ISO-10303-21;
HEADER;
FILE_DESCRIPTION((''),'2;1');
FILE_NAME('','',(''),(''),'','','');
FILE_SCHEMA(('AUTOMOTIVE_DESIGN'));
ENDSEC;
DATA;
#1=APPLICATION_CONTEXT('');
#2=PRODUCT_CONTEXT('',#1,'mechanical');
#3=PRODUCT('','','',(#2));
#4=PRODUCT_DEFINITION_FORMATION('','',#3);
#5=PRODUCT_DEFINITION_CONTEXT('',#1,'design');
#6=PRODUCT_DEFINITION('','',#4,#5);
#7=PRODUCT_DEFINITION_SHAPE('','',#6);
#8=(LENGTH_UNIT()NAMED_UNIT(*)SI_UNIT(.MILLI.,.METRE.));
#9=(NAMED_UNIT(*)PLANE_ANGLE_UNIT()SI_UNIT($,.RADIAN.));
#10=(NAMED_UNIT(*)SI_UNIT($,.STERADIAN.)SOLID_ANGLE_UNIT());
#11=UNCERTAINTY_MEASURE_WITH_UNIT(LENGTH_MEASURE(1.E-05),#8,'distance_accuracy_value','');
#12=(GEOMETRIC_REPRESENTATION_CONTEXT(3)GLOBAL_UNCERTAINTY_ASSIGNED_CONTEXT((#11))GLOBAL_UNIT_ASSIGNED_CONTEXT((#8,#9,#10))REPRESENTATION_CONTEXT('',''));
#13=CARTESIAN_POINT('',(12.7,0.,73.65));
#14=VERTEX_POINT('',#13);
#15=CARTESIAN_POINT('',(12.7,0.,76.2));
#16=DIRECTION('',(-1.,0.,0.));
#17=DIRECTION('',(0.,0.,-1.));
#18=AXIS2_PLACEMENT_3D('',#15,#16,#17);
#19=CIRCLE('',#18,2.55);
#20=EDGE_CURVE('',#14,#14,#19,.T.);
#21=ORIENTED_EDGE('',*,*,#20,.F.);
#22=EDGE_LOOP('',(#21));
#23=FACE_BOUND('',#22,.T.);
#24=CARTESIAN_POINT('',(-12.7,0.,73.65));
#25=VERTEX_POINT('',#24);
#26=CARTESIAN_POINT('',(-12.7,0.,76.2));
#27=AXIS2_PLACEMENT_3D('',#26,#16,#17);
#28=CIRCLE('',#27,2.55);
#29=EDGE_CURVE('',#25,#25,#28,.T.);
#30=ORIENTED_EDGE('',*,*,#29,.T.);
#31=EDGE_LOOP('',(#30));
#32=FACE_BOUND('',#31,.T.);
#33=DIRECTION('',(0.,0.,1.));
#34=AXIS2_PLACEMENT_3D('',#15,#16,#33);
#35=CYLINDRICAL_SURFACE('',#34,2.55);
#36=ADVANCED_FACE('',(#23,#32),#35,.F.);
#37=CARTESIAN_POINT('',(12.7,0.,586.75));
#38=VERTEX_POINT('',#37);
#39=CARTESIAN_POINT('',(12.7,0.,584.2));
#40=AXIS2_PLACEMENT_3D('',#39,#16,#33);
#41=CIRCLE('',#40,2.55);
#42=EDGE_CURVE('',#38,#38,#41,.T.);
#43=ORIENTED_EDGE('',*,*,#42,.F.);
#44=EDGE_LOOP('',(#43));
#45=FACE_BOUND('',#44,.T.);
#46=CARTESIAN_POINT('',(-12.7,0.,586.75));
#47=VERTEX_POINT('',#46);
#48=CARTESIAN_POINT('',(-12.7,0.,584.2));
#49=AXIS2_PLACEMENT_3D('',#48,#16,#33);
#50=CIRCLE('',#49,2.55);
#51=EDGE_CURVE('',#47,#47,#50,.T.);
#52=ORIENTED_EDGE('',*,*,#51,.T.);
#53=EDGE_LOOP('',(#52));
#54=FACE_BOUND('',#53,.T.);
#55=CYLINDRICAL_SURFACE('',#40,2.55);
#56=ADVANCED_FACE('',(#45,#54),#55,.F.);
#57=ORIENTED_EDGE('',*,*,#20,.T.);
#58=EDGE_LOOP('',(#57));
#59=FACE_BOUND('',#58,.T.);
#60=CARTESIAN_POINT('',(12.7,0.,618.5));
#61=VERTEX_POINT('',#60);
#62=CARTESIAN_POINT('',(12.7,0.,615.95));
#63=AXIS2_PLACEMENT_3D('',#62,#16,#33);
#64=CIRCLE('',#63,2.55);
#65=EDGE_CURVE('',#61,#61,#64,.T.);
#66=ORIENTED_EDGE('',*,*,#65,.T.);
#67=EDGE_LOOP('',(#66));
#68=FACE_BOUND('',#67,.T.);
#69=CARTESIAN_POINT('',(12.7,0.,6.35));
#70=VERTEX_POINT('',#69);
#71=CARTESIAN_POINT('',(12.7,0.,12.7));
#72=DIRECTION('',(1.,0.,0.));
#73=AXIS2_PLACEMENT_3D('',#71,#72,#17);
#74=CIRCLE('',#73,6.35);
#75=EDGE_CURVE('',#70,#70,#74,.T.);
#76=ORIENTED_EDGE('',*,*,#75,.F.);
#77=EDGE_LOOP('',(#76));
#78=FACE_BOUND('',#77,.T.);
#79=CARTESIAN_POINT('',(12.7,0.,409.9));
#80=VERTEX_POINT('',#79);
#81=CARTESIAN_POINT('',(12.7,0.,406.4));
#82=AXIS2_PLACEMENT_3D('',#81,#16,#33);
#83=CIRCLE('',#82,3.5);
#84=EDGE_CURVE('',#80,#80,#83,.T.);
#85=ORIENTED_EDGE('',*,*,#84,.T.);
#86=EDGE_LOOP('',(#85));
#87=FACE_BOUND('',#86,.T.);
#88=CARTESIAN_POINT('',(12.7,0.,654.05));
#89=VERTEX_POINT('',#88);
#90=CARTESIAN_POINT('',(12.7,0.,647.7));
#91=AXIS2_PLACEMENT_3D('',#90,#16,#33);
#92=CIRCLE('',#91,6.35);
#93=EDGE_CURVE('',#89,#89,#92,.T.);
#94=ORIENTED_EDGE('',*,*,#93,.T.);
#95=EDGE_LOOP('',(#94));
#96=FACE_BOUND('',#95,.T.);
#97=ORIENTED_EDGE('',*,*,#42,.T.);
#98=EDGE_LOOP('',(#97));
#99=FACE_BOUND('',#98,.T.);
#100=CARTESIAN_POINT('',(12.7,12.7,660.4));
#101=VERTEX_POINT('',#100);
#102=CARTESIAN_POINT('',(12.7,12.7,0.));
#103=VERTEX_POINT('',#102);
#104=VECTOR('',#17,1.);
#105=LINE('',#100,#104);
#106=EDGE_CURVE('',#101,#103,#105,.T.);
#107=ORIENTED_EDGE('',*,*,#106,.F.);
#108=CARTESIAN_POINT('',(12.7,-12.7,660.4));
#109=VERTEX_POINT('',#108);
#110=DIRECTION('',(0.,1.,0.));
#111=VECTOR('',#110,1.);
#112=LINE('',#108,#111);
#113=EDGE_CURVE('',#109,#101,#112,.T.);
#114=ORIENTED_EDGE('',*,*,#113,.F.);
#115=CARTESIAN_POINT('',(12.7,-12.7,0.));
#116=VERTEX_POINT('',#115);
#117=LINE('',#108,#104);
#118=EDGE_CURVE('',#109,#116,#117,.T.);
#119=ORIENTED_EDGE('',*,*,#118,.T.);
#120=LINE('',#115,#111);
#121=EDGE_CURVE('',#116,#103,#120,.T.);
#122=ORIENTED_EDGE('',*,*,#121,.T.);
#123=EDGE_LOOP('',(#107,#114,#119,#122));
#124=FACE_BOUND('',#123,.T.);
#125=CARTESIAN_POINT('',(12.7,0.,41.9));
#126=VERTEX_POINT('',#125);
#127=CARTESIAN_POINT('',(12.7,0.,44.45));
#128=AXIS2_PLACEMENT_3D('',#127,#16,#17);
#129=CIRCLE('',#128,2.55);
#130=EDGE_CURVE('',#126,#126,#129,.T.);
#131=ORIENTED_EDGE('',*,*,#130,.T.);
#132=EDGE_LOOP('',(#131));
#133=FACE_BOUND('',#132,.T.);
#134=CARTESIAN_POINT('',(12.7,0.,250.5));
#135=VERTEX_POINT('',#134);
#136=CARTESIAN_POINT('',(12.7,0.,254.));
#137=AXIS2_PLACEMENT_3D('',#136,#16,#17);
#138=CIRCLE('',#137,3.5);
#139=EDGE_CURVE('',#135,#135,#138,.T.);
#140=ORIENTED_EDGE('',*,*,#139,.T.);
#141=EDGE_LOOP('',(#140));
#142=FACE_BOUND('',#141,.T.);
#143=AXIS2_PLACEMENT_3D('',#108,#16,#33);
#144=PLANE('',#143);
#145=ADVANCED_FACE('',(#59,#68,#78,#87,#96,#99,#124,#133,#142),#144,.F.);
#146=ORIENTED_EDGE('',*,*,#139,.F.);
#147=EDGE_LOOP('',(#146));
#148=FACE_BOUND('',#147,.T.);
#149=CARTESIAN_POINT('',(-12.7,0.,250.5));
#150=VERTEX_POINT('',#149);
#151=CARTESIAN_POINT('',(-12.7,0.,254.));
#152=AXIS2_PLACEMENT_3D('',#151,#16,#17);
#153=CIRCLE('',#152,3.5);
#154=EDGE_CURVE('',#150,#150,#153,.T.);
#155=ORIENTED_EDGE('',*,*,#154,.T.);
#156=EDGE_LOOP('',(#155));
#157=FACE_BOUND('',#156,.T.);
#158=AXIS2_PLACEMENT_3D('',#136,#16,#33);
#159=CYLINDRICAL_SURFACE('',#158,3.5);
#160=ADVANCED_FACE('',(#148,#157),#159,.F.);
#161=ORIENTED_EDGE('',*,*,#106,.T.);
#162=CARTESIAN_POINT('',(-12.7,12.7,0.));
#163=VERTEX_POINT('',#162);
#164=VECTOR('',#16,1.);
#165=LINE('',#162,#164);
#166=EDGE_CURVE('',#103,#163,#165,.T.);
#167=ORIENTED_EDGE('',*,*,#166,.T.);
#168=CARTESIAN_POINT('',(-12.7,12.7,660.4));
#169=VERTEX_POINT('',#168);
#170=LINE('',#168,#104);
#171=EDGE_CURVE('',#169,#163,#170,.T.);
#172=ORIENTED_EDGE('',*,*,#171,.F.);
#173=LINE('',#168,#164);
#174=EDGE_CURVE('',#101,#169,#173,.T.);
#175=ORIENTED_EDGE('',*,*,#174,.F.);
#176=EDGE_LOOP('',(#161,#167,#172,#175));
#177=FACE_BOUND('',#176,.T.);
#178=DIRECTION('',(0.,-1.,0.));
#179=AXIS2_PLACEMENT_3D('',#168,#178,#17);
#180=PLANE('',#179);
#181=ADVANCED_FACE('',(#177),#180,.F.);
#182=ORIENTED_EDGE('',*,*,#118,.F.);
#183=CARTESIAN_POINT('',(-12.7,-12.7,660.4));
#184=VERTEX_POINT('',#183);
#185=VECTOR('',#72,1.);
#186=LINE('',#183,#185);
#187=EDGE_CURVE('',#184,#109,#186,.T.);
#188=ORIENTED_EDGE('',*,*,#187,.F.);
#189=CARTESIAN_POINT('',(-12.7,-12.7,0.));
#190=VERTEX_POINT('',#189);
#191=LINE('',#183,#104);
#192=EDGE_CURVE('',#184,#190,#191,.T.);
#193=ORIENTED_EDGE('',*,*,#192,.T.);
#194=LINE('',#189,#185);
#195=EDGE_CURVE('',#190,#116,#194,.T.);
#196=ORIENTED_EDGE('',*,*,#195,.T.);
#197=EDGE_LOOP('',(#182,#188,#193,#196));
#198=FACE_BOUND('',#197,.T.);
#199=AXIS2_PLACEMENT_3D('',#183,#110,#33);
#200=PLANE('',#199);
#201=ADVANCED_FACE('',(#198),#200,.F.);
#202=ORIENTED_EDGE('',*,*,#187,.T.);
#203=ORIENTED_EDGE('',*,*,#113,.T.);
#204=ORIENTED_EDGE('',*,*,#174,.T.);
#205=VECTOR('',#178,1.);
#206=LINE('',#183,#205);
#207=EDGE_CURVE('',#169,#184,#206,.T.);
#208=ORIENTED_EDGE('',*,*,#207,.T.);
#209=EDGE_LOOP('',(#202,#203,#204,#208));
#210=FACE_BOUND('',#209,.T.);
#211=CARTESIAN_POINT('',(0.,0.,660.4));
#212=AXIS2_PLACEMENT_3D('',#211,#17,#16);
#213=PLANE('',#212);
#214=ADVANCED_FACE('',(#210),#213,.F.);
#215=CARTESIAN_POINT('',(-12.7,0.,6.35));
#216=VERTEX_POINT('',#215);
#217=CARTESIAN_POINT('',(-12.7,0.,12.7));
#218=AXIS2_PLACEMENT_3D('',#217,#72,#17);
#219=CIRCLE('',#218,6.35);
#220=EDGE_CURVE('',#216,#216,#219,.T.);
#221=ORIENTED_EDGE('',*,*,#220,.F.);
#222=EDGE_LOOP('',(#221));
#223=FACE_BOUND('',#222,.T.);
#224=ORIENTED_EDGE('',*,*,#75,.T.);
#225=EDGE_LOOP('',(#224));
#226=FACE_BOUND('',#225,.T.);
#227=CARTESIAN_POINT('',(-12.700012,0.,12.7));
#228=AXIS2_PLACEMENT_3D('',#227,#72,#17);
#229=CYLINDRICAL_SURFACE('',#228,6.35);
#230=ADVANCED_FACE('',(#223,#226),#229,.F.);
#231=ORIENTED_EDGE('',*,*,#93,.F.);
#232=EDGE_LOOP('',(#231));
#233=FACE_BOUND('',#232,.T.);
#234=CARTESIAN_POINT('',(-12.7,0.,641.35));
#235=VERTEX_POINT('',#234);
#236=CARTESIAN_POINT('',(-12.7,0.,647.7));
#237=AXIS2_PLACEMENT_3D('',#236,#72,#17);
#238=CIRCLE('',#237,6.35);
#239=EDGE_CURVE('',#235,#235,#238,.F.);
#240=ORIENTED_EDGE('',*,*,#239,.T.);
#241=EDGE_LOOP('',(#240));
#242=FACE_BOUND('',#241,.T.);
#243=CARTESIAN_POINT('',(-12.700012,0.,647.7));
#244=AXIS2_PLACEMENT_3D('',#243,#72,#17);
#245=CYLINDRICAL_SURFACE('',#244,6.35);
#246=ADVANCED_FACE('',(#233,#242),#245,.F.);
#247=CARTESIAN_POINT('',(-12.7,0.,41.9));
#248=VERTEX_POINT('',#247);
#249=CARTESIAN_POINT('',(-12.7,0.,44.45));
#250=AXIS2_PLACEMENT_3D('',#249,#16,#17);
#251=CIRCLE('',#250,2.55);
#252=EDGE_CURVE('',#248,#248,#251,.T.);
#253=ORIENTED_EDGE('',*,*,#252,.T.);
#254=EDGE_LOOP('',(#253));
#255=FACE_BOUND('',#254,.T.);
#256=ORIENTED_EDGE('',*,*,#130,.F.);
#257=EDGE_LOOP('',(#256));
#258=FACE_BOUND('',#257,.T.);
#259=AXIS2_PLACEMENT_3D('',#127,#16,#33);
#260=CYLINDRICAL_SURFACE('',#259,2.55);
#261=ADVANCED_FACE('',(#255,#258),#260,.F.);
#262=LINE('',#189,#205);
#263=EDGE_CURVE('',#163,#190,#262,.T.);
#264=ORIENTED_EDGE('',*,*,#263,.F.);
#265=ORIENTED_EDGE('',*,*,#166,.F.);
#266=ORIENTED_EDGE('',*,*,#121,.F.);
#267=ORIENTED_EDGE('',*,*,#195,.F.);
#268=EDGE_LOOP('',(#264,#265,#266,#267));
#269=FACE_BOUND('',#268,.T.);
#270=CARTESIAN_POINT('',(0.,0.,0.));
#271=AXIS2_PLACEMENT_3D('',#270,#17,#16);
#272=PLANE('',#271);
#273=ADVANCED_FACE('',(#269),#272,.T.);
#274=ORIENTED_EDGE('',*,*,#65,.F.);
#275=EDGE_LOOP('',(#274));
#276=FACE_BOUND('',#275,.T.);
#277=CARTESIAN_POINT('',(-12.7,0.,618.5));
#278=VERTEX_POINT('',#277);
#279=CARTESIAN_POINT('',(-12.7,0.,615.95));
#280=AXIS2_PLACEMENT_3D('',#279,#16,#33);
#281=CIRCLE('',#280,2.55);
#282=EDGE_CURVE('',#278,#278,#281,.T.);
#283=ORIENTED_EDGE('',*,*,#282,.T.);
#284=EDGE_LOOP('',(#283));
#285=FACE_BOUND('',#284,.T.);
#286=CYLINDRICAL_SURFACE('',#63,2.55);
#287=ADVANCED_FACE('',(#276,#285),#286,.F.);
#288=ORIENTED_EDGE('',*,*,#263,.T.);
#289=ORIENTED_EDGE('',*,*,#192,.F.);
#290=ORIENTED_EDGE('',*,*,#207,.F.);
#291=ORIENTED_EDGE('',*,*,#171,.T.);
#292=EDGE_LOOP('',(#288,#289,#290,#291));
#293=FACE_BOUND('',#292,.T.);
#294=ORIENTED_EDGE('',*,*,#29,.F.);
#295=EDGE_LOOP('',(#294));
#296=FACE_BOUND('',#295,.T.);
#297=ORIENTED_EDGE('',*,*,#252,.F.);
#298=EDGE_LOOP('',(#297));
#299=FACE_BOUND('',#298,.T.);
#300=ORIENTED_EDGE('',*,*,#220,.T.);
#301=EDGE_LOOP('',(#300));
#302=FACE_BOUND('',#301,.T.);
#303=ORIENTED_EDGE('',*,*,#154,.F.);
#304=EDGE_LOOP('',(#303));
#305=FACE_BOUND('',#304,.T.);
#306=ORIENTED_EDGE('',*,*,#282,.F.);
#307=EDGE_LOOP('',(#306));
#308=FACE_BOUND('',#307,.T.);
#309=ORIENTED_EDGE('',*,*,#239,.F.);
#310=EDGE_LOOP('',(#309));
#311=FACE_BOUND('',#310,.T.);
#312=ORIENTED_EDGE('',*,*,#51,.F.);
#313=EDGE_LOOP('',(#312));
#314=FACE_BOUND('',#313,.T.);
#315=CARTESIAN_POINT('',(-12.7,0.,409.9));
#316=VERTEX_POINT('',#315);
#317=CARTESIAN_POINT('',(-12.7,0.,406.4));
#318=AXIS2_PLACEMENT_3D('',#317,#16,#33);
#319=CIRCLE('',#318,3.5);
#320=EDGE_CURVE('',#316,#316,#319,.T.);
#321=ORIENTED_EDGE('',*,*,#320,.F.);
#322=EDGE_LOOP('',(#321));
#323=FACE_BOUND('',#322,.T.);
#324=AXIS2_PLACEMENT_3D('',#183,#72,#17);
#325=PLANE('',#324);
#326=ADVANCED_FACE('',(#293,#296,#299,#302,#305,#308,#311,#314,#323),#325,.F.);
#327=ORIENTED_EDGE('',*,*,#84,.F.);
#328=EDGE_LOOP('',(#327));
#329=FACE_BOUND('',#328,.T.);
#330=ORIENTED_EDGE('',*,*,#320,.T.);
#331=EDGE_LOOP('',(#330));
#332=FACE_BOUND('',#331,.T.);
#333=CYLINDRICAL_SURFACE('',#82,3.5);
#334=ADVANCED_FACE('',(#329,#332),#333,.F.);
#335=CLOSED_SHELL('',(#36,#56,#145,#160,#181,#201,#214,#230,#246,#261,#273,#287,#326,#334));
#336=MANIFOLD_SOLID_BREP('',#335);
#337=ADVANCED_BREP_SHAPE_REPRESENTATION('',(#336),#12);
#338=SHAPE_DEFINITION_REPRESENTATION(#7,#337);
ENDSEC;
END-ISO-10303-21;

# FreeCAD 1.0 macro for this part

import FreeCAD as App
import Part
import Sketcher
from FreeCAD import Vector


def add_polygon(sketch, points):
    """Adds a closed chain of lines whose ends are joined by coincident constraints."""
    first, n = sketch.GeometryCount, len(points)
    for a, b in zip(points, points[1:] + points[:1]):
        sketch.addGeometry(Part.LineSegment(App.Vector(*a, 0), App.Vector(*b, 0)), False)
    for i in range(n):
        sketch.addConstraint(Sketcher.Constraint("Coincident", first + i, 2, first + (i + 1) % n, 1))

doc = App.newDocument("Part")
body = doc.addObject("PartDesign::Body", "Body")

# Sketch on XY plane
sketch1 = body.newObject("Sketcher::SketchObject", "Sketch")
sketch1.AttachmentSupport = (doc.getObject("XY_Plane"), [""])
sketch1.MapMode = "FlatFace"
add_polygon(sketch1, [(-13, 13), (-13, -13), (13, -13), (13, 13)])  # lines 0-3
sketch1.addConstraint([
    Sketcher.Constraint("Vertical", 0),
    Sketcher.Constraint("Horizontal", 1),
    Sketcher.Constraint("Vertical", 2),
    Sketcher.Constraint("Horizontal", 3),
    Sketcher.Constraint("Symmetric", 0, 2, 2, 2, -1, 1),
    Sketcher.Constraint("Equal", 3, 0),
    Sketcher.Constraint("DistanceX", 1, 1, 1, 2, 25.4),
])
pad1 = body.newObject("PartDesign::Pad", "Pad")
pad1.Profile = sketch1
pad1.Length = 660.4

# Sketch on YZ plane
sketch2 = body.newObject("Sketcher::SketchObject", "Sketch001")
sketch2.AttachmentSupport = (doc.getObject("YZ_Plane"), [""])
sketch2.MapMode = "FlatFace"
sketch2.AttachmentOffset = App.Placement(Vector(0, 0, -12.7), App.Rotation())
sketch2.addGeometry([
    Part.Circle(Vector(0, 13, 0), Vector(0, 0, 1), 6),
    Part.Circle(Vector(0, 648, 0), Vector(0, 0, 1), 6),
], False)
sketch2.addConstraint([
    Sketcher.Constraint("Equal", 0, 1),
    Sketcher.Constraint("PointOnObject", 0, 3, -2),
    Sketcher.Constraint("PointOnObject", 1, 3, -2),
    Sketcher.Constraint("Diameter", 0, 12.7),
    Sketcher.Constraint("DistanceY", 0, 3, 1, 3, 635.0),
    Sketcher.Constraint("DistanceY", -1, 1, 0, 3, 12.7),
])
pocket1 = body.newObject("PartDesign::Pocket", "Pocket")
pocket1.Profile = sketch2
pocket1.Type = "ThroughAll"
pocket1.Midplane = True

# Sketch on YZ plane
sketch3 = body.newObject("Sketcher::SketchObject", "Sketch002")
sketch3.AttachmentSupport = (doc.getObject("YZ_Plane"), [""])
sketch3.MapMode = "FlatFace"
sketch3.AttachmentOffset = App.Placement(Vector(0, 0, -12.7), App.Rotation())
sketch3.addGeometry([
    Part.Circle(Vector(0, 584.2, 0), Vector(0, 0, 1), 2.5),
    Part.Circle(Vector(0, 76.2, 0), Vector(0, 0, 1), 2.5),
    Part.Circle(Vector(0, 616, 0), Vector(0, 0, 1), 2.5),
    Part.Circle(Vector(0, 44.5, 0), Vector(0, 0, 1), 2.5),
], False)
sketch3.addConstraint([
    Sketcher.Constraint("Equal", 0, 1),
    Sketcher.Constraint("Equal", 1, 2),
    Sketcher.Constraint("Equal", 2, 3),
    Sketcher.Constraint("PointOnObject", 0, 3, -2),
    Sketcher.Constraint("PointOnObject", 1, 3, -2),
    Sketcher.Constraint("PointOnObject", 2, 3, -2),
    Sketcher.Constraint("PointOnObject", 3, 3, -2),
    Sketcher.Constraint("Diameter", 0, 5.1),
    Sketcher.Constraint("DistanceY", 1, 3, 0, 3, 508.0),
    Sketcher.Constraint("DistanceY", -1, 1, 0, 3, 584.2),
    Sketcher.Constraint("DistanceY", 3, 3, 2, 3, 571.5),
    Sketcher.Constraint("DistanceY", -1, 1, 2, 3, 615.95),
])
pocket2 = body.newObject("PartDesign::Pocket", "Pocket001")
pocket2.Profile = sketch3
pocket2.Type = "ThroughAll"
pocket2.Reversed = True

# Sketch on YZ plane
sketch4 = body.newObject("Sketcher::SketchObject", "Sketch003")
sketch4.AttachmentSupport = (doc.getObject("YZ_Plane"), [""])
sketch4.MapMode = "FlatFace"
sketch4.AttachmentOffset = App.Placement(Vector(0, 0, -12.7), App.Rotation())
sketch4.addGeometry([
    Part.Circle(Vector(0, 406.4, 0), Vector(0, 0, 1), 3.5),
    Part.Circle(Vector(0, 254, 0), Vector(0, 0, 1), 3.5),
], False)
sketch4.addConstraint([
    Sketcher.Constraint("Equal", 0, 1),
    Sketcher.Constraint("PointOnObject", 0, 3, -2),
    Sketcher.Constraint("PointOnObject", 1, 3, -2),
    Sketcher.Constraint("Diameter", 0, 7.0),
    Sketcher.Constraint("DistanceY", -1, 1, 1, 3, 254.0),
    Sketcher.Constraint("DistanceY", -1, 1, 0, 3, 406.4),
])
pocket3 = body.newObject("PartDesign::Pocket", "Pocket002")
pocket3.Profile = sketch4
pocket3.Type = "ThroughAll"
pocket3.Reversed = True

doc.recompute()
